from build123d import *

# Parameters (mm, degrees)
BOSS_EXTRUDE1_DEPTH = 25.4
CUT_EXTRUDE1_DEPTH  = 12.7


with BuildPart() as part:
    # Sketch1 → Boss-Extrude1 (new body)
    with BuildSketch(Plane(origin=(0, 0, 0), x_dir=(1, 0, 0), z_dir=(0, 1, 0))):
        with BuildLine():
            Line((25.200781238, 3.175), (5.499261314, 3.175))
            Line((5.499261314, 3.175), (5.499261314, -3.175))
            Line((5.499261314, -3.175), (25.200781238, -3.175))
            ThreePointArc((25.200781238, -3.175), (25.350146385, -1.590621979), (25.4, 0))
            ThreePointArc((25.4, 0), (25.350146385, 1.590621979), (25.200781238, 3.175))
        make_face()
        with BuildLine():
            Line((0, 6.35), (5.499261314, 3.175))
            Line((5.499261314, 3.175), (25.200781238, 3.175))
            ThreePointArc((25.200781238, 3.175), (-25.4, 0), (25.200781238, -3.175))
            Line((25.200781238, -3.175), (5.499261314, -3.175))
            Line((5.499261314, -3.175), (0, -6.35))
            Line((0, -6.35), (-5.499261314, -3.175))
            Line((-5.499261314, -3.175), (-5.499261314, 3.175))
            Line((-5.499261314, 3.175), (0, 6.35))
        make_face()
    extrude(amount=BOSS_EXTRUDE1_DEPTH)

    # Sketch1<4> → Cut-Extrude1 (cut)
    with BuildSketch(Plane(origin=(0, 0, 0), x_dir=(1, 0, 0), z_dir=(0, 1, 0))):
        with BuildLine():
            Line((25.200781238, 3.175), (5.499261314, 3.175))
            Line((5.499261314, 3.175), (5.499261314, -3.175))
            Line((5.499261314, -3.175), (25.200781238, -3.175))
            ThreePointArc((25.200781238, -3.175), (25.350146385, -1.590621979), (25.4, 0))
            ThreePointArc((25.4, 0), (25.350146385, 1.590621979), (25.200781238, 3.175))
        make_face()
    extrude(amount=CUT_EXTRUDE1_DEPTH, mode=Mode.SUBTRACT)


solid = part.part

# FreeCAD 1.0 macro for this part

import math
import FreeCAD as App
import Part
import Sketcher
from FreeCAD import Vector
Q = App.Units.Quantity

doc = App.newDocument("Part")
body = doc.addObject("PartDesign::Body", "Body")

# Sketch on XZ plane
sketch1 = body.newObject("Sketcher::SketchObject", "Sketch")
sketch1.AttachmentSupport = (doc.getObject("XZ_Plane"), [""])
sketch1.MapMode = "FlatFace"
sketch1.addGeometry(Part.ArcOfCircle(Part.Circle(Vector(0, 0, 0), Vector(0, 0, 1), 25.4), math.radians(0), math.radians(7.180756)), False)
sketch1.addGeometry(Part.ArcOfCircle(Part.Circle(Vector(0, 0, 0), Vector(0, 0, 1), 25.4), math.radians(-7.180756), math.radians(0)), False)
sketch1.addGeometry(Part.ArcOfCircle(Part.Circle(Vector(0, 0, 0), Vector(0, 0, 1), 25.4), math.radians(7.180756), math.radians(352.819244)), False)
sketch1.addGeometry(Part.LineSegment(Vector(5.499261, -3.175, 0), Vector(5.499261, 3.175, 0)), False)
sketch1.addGeometry(Part.LineSegment(Vector(5.499261, 3.175, 0), Vector(0, 6.35, 0)), False)
sketch1.addGeometry(Part.LineSegment(Vector(0, 6.35, 0), Vector(-5.499261, 3.175, 0)), False)
sketch1.addGeometry(Part.LineSegment(Vector(-5.499261, 3.175, 0), Vector(-5.499261, -3.175, 0)), False)
sketch1.addGeometry(Part.LineSegment(Vector(-5.499261, -3.175, 0), Vector(0, -6.35, 0)), False)
sketch1.addGeometry(Part.LineSegment(Vector(0, -6.35, 0), Vector(5.499261, -3.175, 0)), False)
sketch1.addConstraint(Sketcher.Constraint("Tangent", 0, 1, 1, 2))
sketch1.addConstraint(Sketcher.Constraint("Tangent", 1, 1, 2, 2))
sketch1.addConstraint(Sketcher.Constraint("Coincident", 2, 1, 0, 2))
sketch1.addConstraint(Sketcher.Constraint("Coincident", 3, 2, 4, 1))
sketch1.addConstraint(Sketcher.Constraint("Coincident", 4, 2, 5, 1))
sketch1.addConstraint(Sketcher.Constraint("Coincident", 5, 2, 6, 1))
sketch1.addConstraint(Sketcher.Constraint("Coincident", 6, 2, 7, 1))
sketch1.addConstraint(Sketcher.Constraint("Coincident", 7, 2, 8, 1))
sketch1.addConstraint(Sketcher.Constraint("Coincident", 8, 2, 3, 1))
sketch1.addConstraint(Sketcher.Constraint("Vertical", 3))
sketch1.addConstraint(Sketcher.Constraint("Vertical", 6))
sketch1.addConstraint(Sketcher.Constraint("Coincident", 0, 3, -1, 1))
sketch1.addConstraint(Sketcher.Constraint("Equal", 0, 1))
sketch1.addConstraint(Sketcher.Constraint("Symmetric", 3, 2, 6, 2, -1, 1))
sketch1.addConstraint(Sketcher.Constraint("Symmetric", 4, 2, 7, 2, -1, 1))
sketch1.addConstraint(Sketcher.Constraint("PointOnObject", 0, 1, -1))
sketch1.addConstraint(Sketcher.Constraint("PointOnObject", 4, 2, -2))
sketch1.addConstraint(Sketcher.Constraint("Parallel", 5, 8))
sketch1.addConstraint(Sketcher.Constraint("Horizontal", 2, 1, 3, 2))
sketch1.addConstraint(Sketcher.Constraint("Horizontal", 3, 2, 5, 2))
sketch1.addConstraint(Sketcher.Constraint("Horizontal", 1, 1, 6, 2))
sketch1.addConstraint(Sketcher.Constraint("Radius", 0, Q("1 in")))
sketch1.addConstraint(Sketcher.Constraint("Angle", 4, Q("150 deg")))
sketch1.addConstraint(Sketcher.Constraint("DistanceY", 3, 1, 3, 2, Q("0.25 in")))
sketch1.addConstraint(Sketcher.Constraint("Distance", 4, Q("0.25 in")))
pad1 = body.newObject("PartDesign::Pad", "Pad")
pad1.Profile = sketch1
pad1.Length = Q("1 in")
pad1.Reversed = True

# Sketch on XZ plane
sketch2 = body.newObject("Sketcher::SketchObject", "Sketch001")
sketch2.AttachmentSupport = (doc.getObject("XZ_Plane"), [""])
sketch2.MapMode = "FlatFace"
sketch2.addGeometry(Part.LineSegment(Vector(25.200781, -3.175, 0), Vector(5.499261, -3.175, 0)), False)
sketch2.addGeometry(Part.LineSegment(Vector(5.499261, -3.175, 0), Vector(5.499261, 3.175, 0)), False)
sketch2.addGeometry(Part.LineSegment(Vector(5.499261, 3.175, 0), Vector(25.200781, 3.175, 0)), False)
sketch2.addGeometry(Part.ArcOfCircle(Part.Circle(Vector(0, 0, 0), Vector(0, 0, 1), 25.4), math.radians(0), math.radians(7.180756)), False)
sketch2.addGeometry(Part.ArcOfCircle(Part.Circle(Vector(0, 0, 0), Vector(0, 0, 1), 25.4), math.radians(-7.180756), math.radians(0)), False)
sketch2.addConstraint(Sketcher.Constraint("Coincident", 0, 2, 1, 1))
sketch2.addConstraint(Sketcher.Constraint("Coincident", 1, 2, 2, 1))
sketch2.addConstraint(Sketcher.Constraint("Coincident", 2, 2, 3, 2))
sketch2.addConstraint(Sketcher.Constraint("Tangent", 3, 1, 4, 2))
sketch2.addConstraint(Sketcher.Constraint("Coincident", 4, 1, 0, 1))
sketch2.addConstraint(Sketcher.Constraint("Horizontal", 0))
sketch2.addConstraint(Sketcher.Constraint("Vertical", 1))
sketch2.addConstraint(Sketcher.Constraint("Horizontal", 2))
sketch2.addConstraint(Sketcher.Constraint("Coincident", 3, 3, -1, 1))
sketch2.addConstraint(Sketcher.Constraint("Equal", 3, 4))
sketch2.addConstraint(Sketcher.Constraint("PointOnObject", 3, 1, -1))
sketch2.addConstraint(Sketcher.Constraint("Vertical", 2, 2, 4, 1))
sketch2.addConstraint(Sketcher.Constraint("Radius", 3, Q("1 in")))
sketch2.addConstraint(Sketcher.Constraint("DistanceY", 1, 1, 1, 2, Q("0.25 in")))
sketch2.addConstraint(Sketcher.Constraint("DistanceX", 0, 2, 0, 1, 19.70152))
pocket1 = body.newObject("PartDesign::Pocket", "Pocket")
pocket1.Profile = sketch2
pocket1.Length = Q("0.5 in")

doc.recompute()
